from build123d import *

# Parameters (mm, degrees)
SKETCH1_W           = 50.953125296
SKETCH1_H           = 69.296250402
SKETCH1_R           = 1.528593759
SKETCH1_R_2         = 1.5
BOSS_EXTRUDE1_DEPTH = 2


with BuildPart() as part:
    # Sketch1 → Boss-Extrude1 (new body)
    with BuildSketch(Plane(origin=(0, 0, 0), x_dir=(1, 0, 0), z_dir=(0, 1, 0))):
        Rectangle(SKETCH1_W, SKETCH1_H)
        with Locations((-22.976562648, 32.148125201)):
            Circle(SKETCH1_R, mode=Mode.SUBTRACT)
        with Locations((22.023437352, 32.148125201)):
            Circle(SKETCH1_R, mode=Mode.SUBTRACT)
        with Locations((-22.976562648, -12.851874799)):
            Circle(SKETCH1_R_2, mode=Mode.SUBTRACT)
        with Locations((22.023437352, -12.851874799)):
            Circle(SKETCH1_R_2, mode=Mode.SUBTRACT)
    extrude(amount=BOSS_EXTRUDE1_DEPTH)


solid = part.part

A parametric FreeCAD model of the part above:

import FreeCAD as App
import Part
import Sketcher
from FreeCAD import Vector


def add_polygon(sketch, points):
    """Adds a closed chain of lines whose ends are joined by coincident constraints."""
    first, n = sketch.GeometryCount, len(points)
    for a, b in zip(points, points[1:] + points[:1]):
        sketch.addGeometry(Part.LineSegment(App.Vector(*a, 0), App.Vector(*b, 0)), False)
    for i in range(n):
        sketch.addConstraint(Sketcher.Constraint("Coincident", first + i, 2, first + (i + 1) % n, 1))

doc = App.newDocument("Part")
body = doc.addObject("PartDesign::Body", "Body")

# Sketch on XZ plane
sketch1 = body.newObject("Sketcher::SketchObject", "Sketch")
sketch1.AttachmentSupport = (doc.getObject("XZ_Plane"), [""])
sketch1.MapMode = "FlatFace"
add_polygon(sketch1, [(-25.476563, -34.648125), (-25.476563, 34.648125), (25.476563, 34.648125), (25.476563, -34.648125)])  # lines 0-3
sketch1.addGeometry(Part.Circle(Vector(-22.976563, 12.851875, 0), Vector(0, 0, 1), 1.5), False)  # 4
sketch1.addGeometry(Part.Circle(Vector(22.023437, 12.851875, 0), Vector(0, 0, 1), 1.5), False)  # 5
sketch1.addGeometry(Part.Circle(Vector(-22.976563, -32.148125, 0), Vector(0, 0, 1), 1.528594), False)  # 6
sketch1.addGeometry(Part.Circle(Vector(22.023437, -32.148125, 0), Vector(0, 0, 1), 1.528594), False)  # 7
sketch1.addConstraint([
    Sketcher.Constraint("Vertical", 0),
    Sketcher.Constraint("Horizontal", 1),
    Sketcher.Constraint("Vertical", 2),
    Sketcher.Constraint("Horizontal", 3),
    Sketcher.Constraint("Equal", 4, 5),
    Sketcher.Constraint("Equal", 6, 7),
    Sketcher.Constraint("Symmetric", 0, 2, 2, 2, -1, 1),
    Sketcher.Constraint("Horizontal", 4, 3, 5, 3),
    Sketcher.Constraint("Horizontal", 6, 3, 7, 3),
    Sketcher.Constraint("Vertical", 4, 3, 6, 3),
    Sketcher.Constraint("Vertical", 5, 3, 7, 3),
    Sketcher.Constraint("Diameter", 4, 3.0),
    Sketcher.Constraint("DistanceX", 4, 3, 5, 3, 45.0),
    Sketcher.Constraint("DistanceY", 6, 3, 4, 3, 45.0),
    Sketcher.Constraint("DistanceX", 0, 2, 4, 3, 2.5),
    Sketcher.Constraint("DistanceY", 2, 2, 7, 3, 2.5),
    Sketcher.Constraint("Diameter", 6, 3.057188),
    Sketcher.Constraint("DistanceY", 0, 1, 0, 2, 69.29625),
    Sketcher.Constraint("DistanceX", 1, 1, 1, 2, 50.953125),
])
pad1 = body.newObject("PartDesign::Pad", "Pad")
pad1.Profile = sketch1
pad1.Length = 2
pad1.Reversed = True

doc.recompute()
